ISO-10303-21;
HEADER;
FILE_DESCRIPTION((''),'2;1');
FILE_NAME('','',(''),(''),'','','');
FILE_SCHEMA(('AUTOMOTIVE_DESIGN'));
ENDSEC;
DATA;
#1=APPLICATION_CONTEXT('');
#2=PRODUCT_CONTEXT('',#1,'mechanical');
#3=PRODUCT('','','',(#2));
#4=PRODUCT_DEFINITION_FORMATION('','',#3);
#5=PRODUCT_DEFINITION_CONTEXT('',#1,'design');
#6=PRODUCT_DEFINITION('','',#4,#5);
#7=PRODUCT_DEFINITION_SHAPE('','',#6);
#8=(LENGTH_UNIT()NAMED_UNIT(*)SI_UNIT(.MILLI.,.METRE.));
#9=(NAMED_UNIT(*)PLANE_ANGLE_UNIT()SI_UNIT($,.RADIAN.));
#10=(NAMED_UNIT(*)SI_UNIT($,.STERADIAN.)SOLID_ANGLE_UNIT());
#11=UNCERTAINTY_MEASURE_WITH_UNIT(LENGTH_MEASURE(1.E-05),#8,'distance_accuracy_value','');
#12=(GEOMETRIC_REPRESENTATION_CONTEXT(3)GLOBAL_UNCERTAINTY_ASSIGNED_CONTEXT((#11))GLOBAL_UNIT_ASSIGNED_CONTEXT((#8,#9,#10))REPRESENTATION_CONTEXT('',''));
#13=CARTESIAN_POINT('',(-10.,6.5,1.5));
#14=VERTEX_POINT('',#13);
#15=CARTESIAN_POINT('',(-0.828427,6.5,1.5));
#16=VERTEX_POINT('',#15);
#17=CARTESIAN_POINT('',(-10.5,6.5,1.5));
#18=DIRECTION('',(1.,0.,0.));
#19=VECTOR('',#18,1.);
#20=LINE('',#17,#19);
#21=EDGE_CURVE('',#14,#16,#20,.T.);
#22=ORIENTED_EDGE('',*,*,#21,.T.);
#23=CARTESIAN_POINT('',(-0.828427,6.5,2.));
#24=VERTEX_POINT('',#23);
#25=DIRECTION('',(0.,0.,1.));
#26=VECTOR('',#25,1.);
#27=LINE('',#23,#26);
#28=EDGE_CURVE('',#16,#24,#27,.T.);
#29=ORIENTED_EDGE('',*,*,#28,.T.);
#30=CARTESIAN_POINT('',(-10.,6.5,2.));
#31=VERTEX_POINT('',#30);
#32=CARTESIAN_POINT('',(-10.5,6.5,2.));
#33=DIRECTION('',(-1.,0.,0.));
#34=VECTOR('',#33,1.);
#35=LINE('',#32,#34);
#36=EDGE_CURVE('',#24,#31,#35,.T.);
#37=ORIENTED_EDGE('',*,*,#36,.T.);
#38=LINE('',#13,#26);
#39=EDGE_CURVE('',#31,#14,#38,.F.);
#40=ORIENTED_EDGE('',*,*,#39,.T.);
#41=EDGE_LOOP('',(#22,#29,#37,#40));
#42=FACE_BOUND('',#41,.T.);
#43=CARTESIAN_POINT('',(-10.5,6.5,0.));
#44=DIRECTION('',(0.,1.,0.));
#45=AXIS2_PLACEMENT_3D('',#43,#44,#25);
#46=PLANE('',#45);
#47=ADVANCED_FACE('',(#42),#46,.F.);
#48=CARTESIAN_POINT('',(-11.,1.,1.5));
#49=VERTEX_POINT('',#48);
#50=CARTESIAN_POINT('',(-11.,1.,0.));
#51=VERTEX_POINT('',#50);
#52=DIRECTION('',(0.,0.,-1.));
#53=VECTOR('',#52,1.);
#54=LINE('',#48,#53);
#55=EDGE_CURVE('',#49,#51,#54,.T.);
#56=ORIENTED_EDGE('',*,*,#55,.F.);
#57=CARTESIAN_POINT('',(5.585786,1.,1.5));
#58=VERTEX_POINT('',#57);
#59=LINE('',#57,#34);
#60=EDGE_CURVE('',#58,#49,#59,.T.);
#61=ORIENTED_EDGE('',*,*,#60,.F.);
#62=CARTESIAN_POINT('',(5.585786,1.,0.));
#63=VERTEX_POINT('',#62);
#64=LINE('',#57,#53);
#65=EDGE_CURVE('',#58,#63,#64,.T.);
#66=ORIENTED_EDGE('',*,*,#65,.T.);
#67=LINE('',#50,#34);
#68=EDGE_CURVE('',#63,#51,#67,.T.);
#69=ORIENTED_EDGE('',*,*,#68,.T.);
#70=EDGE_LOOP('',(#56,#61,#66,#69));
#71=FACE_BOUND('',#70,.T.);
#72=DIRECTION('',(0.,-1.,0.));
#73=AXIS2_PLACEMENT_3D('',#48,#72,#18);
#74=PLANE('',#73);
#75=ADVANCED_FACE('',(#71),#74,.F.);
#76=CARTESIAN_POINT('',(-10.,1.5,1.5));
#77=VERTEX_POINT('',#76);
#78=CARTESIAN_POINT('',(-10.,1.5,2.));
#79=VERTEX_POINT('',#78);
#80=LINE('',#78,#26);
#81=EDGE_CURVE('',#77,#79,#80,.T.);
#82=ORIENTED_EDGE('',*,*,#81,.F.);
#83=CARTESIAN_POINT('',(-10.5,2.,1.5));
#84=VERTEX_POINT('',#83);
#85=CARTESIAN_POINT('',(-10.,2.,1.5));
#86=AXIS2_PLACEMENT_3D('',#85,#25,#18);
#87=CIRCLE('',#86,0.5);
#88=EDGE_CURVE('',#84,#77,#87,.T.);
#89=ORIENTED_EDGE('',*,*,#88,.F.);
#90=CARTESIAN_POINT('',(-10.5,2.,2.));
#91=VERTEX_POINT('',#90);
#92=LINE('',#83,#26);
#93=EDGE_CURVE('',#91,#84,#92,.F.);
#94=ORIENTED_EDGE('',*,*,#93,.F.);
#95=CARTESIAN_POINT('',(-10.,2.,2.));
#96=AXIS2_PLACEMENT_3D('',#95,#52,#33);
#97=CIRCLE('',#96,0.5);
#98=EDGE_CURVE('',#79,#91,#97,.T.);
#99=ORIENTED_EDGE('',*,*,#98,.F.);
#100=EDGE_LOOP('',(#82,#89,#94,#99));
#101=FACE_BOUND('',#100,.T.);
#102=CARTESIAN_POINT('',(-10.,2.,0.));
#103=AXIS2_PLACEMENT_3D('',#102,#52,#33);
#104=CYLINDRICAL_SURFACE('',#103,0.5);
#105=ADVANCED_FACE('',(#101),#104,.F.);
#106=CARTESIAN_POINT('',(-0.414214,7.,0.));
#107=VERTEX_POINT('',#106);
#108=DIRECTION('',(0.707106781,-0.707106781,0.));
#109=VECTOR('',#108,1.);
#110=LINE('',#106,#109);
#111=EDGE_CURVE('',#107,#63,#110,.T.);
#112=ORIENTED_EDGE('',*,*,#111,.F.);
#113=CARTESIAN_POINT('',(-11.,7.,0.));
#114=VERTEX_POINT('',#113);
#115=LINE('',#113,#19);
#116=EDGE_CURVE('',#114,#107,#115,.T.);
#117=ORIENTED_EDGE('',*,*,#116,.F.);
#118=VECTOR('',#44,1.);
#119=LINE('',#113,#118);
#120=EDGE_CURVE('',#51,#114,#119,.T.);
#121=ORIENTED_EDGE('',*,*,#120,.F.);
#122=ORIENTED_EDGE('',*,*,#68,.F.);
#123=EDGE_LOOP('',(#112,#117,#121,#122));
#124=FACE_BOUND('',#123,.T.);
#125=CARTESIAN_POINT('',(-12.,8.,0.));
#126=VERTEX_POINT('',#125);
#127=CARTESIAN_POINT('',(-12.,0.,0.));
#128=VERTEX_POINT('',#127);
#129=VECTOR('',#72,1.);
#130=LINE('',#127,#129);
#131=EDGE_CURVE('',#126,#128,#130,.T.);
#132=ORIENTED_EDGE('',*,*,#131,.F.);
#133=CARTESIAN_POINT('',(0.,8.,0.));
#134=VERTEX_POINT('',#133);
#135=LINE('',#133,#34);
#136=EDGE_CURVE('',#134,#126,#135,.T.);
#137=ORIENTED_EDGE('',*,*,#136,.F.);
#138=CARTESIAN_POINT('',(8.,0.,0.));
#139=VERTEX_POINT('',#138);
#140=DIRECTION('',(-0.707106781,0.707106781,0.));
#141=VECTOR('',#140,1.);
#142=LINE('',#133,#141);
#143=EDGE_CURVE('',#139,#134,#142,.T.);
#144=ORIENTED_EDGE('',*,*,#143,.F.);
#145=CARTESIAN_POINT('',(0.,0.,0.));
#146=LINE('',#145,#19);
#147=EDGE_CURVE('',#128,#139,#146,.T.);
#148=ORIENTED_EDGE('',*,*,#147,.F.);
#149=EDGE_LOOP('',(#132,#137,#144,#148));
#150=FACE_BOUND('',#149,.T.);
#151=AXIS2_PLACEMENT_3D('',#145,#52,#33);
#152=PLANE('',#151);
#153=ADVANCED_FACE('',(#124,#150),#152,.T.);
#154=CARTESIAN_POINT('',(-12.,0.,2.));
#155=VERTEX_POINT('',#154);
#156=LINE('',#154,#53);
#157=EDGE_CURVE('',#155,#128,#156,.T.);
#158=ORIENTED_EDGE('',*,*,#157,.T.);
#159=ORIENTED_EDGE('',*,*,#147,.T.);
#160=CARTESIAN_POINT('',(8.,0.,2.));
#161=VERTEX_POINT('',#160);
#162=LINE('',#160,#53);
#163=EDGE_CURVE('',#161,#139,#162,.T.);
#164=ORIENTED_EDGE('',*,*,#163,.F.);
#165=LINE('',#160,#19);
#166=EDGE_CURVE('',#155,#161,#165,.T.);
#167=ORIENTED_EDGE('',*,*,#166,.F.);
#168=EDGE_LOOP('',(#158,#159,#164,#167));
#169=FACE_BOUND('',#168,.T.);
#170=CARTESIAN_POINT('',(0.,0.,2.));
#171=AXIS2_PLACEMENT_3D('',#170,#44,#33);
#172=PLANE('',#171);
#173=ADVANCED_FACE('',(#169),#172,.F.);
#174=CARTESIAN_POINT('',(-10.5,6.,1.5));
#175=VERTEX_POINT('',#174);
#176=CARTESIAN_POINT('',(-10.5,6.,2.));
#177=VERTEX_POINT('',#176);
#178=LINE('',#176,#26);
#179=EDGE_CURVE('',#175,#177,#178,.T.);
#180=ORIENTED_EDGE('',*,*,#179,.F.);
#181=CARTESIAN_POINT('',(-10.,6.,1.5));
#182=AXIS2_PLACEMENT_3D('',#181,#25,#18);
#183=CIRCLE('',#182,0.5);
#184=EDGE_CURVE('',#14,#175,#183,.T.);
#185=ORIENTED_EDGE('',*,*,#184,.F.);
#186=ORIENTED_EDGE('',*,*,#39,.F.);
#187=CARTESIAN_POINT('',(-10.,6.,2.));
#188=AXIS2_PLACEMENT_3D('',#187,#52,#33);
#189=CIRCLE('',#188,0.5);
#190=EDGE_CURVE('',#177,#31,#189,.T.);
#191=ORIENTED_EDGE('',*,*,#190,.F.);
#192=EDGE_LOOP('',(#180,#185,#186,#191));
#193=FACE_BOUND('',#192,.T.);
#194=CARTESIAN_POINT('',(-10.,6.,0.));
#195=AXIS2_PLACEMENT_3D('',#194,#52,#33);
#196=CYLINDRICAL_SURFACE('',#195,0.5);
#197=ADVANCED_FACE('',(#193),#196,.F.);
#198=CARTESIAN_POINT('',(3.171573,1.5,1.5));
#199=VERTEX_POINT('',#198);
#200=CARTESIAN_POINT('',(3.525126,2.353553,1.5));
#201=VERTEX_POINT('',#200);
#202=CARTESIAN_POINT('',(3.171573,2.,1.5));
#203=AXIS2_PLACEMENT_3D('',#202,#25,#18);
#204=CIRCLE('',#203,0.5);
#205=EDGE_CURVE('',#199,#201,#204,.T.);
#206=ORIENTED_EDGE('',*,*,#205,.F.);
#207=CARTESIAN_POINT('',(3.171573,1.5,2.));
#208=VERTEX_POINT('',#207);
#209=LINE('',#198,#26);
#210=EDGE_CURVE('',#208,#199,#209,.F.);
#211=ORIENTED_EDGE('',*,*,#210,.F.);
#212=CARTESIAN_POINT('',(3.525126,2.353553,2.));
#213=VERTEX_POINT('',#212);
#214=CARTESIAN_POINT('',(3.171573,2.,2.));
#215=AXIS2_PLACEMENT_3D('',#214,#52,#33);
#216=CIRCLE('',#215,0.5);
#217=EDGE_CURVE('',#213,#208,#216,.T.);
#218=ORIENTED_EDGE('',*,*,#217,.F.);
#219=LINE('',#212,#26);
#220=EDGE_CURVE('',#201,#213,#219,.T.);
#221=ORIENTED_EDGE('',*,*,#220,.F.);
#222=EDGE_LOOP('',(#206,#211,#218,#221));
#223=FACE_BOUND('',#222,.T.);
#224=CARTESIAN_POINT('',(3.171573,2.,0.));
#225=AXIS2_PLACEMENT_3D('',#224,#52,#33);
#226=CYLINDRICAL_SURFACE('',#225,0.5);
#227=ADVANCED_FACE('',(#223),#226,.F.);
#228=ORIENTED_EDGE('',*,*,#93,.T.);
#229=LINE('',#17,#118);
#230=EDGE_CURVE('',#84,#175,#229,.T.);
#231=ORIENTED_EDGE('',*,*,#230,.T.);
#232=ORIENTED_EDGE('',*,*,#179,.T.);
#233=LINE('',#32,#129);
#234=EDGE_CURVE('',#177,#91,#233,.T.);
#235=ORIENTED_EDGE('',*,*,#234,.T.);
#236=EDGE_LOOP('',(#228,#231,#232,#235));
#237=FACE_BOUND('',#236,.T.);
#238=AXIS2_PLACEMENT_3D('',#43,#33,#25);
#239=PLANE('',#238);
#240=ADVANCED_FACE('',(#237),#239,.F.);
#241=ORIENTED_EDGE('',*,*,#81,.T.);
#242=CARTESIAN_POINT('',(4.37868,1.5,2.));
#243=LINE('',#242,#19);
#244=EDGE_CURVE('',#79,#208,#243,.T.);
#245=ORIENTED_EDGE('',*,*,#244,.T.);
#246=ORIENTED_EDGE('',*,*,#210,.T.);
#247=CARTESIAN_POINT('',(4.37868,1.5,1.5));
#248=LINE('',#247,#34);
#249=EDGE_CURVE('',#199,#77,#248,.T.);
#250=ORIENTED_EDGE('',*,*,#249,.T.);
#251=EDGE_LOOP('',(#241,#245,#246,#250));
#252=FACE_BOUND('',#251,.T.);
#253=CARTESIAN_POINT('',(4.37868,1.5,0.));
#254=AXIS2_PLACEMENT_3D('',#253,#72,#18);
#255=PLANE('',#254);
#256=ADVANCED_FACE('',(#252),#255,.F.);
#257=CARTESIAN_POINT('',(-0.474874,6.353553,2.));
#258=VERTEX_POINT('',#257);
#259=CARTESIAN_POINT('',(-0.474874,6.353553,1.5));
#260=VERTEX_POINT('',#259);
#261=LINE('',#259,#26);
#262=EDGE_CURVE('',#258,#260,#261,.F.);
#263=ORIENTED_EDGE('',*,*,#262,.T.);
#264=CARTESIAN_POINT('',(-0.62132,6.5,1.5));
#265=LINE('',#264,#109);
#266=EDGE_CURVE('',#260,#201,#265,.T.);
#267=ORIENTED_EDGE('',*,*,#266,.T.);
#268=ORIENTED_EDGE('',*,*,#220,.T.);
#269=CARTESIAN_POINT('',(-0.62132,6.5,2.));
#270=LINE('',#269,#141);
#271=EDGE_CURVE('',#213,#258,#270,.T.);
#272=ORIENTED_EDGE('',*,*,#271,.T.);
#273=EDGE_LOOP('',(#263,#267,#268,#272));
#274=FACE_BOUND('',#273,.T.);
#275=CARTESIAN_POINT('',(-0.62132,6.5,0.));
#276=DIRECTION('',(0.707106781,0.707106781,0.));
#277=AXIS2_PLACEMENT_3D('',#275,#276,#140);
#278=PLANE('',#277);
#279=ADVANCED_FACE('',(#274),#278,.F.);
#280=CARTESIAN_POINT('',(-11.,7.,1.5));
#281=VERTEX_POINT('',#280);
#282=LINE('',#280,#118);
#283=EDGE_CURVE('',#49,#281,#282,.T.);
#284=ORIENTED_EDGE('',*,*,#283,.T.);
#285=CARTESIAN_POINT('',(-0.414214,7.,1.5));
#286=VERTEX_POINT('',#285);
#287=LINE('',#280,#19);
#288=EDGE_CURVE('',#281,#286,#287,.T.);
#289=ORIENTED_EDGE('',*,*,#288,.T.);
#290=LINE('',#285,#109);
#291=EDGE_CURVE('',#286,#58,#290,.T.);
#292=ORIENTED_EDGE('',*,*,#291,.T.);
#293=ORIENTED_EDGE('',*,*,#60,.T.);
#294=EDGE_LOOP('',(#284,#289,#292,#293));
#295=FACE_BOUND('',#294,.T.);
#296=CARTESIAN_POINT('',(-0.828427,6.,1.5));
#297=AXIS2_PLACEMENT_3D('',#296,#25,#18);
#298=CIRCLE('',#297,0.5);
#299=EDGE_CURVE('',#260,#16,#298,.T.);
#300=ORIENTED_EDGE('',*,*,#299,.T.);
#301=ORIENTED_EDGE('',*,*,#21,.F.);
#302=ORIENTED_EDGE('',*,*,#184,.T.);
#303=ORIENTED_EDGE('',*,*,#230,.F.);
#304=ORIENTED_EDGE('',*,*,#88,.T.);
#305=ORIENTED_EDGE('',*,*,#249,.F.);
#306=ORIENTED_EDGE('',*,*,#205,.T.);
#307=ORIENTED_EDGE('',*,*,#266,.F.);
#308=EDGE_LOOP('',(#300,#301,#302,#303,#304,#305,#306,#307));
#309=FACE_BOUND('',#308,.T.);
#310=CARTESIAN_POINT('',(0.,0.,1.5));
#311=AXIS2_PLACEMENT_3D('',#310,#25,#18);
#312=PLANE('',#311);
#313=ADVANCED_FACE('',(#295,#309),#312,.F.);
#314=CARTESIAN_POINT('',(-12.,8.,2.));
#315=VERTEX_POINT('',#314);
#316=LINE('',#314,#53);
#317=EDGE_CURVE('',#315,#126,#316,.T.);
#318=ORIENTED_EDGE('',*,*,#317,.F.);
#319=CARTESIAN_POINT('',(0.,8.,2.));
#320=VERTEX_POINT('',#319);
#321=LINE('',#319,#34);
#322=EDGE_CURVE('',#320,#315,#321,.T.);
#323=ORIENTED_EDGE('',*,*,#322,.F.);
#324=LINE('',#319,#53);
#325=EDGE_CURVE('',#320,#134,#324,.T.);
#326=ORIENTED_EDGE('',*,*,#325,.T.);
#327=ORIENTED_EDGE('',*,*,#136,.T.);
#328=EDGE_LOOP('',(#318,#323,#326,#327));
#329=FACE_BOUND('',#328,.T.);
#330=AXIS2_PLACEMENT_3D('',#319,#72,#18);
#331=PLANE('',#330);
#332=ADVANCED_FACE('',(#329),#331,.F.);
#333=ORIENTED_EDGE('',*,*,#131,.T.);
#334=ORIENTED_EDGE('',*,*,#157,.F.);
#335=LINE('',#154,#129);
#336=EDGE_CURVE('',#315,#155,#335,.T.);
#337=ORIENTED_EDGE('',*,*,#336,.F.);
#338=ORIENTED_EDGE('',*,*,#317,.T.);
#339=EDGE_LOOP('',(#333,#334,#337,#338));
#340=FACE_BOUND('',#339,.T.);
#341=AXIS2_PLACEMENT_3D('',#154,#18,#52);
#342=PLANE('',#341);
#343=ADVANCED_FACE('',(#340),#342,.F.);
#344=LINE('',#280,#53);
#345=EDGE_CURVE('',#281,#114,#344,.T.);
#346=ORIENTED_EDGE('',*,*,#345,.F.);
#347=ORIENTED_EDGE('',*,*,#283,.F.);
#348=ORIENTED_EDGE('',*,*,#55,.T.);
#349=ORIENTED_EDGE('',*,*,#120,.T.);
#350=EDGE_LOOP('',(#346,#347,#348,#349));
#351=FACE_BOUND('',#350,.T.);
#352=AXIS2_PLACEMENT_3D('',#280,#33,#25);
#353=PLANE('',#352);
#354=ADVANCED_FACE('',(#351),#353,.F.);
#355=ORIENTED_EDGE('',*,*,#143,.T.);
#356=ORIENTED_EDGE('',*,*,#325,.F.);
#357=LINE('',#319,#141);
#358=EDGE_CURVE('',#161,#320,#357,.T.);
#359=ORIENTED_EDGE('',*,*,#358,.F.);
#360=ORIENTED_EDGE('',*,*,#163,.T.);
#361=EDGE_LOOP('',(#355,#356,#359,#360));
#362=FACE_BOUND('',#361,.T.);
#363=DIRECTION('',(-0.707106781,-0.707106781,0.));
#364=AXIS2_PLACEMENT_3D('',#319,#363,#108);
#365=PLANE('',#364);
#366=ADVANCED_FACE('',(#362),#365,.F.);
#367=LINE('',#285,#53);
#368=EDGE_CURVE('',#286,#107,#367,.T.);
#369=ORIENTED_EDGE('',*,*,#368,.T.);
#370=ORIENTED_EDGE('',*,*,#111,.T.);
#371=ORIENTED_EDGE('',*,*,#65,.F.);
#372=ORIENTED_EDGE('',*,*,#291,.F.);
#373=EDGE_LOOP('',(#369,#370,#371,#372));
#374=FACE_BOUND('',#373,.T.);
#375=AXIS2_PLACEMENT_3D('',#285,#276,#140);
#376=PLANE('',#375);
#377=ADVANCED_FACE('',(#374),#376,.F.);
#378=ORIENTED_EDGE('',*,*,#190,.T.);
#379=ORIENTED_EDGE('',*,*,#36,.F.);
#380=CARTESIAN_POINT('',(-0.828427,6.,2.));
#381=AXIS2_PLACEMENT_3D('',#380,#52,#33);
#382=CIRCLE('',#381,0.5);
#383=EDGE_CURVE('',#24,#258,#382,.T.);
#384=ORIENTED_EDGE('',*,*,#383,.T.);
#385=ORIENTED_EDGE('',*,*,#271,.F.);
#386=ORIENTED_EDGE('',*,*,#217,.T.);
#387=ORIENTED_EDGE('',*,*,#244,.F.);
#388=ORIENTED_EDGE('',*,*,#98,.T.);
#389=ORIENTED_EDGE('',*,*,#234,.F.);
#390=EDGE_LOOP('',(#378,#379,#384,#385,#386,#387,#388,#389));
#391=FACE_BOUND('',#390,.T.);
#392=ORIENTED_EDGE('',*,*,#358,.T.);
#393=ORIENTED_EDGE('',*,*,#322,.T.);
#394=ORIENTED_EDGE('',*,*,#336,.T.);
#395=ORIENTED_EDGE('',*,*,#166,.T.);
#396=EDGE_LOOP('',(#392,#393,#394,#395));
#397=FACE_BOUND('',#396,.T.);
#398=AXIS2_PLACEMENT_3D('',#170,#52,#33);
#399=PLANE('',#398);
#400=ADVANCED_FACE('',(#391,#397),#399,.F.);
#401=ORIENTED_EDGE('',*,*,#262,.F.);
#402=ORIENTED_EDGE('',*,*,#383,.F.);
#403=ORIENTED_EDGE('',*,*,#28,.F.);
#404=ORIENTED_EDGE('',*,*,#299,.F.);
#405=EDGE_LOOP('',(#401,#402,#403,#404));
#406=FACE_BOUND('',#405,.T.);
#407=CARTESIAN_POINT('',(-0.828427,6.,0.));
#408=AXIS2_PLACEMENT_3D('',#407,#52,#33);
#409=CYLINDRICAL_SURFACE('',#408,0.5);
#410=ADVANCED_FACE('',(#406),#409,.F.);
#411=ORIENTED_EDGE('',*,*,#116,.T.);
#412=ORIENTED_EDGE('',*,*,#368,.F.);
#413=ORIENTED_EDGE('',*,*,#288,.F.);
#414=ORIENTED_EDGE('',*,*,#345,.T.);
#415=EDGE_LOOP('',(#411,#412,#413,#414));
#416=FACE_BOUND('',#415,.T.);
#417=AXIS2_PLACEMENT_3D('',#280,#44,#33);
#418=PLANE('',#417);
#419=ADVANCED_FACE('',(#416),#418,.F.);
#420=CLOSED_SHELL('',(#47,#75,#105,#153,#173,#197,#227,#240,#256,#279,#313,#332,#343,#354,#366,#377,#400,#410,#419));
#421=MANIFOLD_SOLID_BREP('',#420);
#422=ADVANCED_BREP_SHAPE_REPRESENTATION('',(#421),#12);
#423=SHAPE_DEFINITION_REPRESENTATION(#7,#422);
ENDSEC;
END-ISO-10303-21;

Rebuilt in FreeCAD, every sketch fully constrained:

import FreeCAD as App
import Part
import Sketcher

V = App.Vector
Q = App.Units.Quantity


def edges_at(feature, points):
    """Names of the edges that pass closest to the given points."""
    edges = feature.Shape.Edges
    near = lambda p: min(range(len(edges)), key=lambda i: edges[i].distToShape(Part.Vertex(*p))[0])
    return sorted({f"Edge{near(p) + 1}" for p in points})


def add_polygon(sketch, points):
    """Adds a closed chain of lines whose ends are joined by coincident constraints."""
    first, n = sketch.GeometryCount, len(points)
    for a, b in zip(points, points[1:] + points[:1]):
        sketch.addGeometry(Part.LineSegment(App.Vector(*a, 0), App.Vector(*b, 0)), False)
    for i in range(n):
        sketch.addConstraint(Sketcher.Constraint("Coincident", first + i, 2, first + (i + 1) % n, 1))

doc = App.newDocument("Part")
body = doc.addObject("PartDesign::Body", "Body")

# Sketch on XY plane
sketch1 = doc.addObject("Sketcher::SketchObject", "Sketch")
body.addObject(sketch1)
sketch1.AttachmentSupport = (doc.XY_Plane, [""])
sketch1.MapMode = "FlatFace"
add_polygon(sketch1, [(8, 0), (0, 8), (-12, 8), (-12, 0)])  # lines 0-3
sketch1.addConstraint(Sketcher.Constraint("Horizontal", 1))
sketch1.addConstraint(Sketcher.Constraint("Vertical", 2))
sketch1.addConstraint(Sketcher.Constraint("Horizontal", 3))
sketch1.addConstraint(Sketcher.Constraint("PointOnObject", 0, 2, -2))
sketch1.addConstraint(Sketcher.Constraint("PointOnObject", 2, 2, -1))
sketch1.addConstraint(Sketcher.Constraint("DistanceX", 1, 2, 1, 1, Q("12 mm")))
sketch1.addConstraint(Sketcher.Constraint("DistanceX", 3, 1, 3, 2, Q("20 mm")))
sketch1.addConstraint(Sketcher.Constraint("DistanceY", 2, 2, 2, 1, Q("8 mm")))
pad1 = doc.addObject("PartDesign::Pad", "Pad")
body.addObject(pad1)
pad1.Profile = sketch1
pad1.Length = 2

# Sketch on XY plane
sketch2 = doc.addObject("Sketcher::SketchObject", "Sketch001")
body.addObject(sketch2)
sketch2.AttachmentSupport = (doc.XY_Plane, [""])
sketch2.MapMode = "FlatFace"
sketch2.AttachmentOffset = App.Placement(V(0, 0, 2), App.Rotation())
add_polygon(sketch2, [(4, 2), (-1, 6), (-10, 6), (-10, 2)])  # lines 0-3
sketch2.addConstraint(Sketcher.Constraint("Horizontal", 1))
sketch2.addConstraint(Sketcher.Constraint("Vertical", 2))
sketch2.addConstraint(Sketcher.Constraint("Horizontal", 3))
sketch2.addConstraint(Sketcher.Constraint("DistanceY", 2, 2, 2, 1, Q("5 mm")))
sketch2.addConstraint(Sketcher.Constraint("Angle", 0, Q("135 deg")))
sketch2.addConstraint(Sketcher.Constraint("DistanceY", -1, 1, 0, 2, Q("6.5 mm")))
sketch2.addConstraint(Sketcher.Constraint("DistanceX", 1, 2, -1, 1, Q("10.5 mm")))
sketch2.addConstraint(Sketcher.Constraint("DistanceX", 1, 2, 1, 1, Q("9.87868 mm")))
pocket1 = doc.addObject("PartDesign::Pocket", "Pocket")
body.addObject(pocket1)
pocket1.Profile = sketch2
pocket1.Type = "ThroughAll"

# Sketch on XY plane
sketch3 = doc.addObject("Sketcher::SketchObject", "Sketch002")
body.addObject(sketch3)
sketch3.AttachmentSupport = (doc.XY_Plane, [""])
sketch3.MapMode = "FlatFace"
add_polygon(sketch3, [(0, 7), (6, 1), (-11, 1), (-11, 7)])  # lines 0-3
sketch3.addConstraint(Sketcher.Constraint("Horizontal", 1))
sketch3.addConstraint(Sketcher.Constraint("Vertical", 2))
sketch3.addConstraint(Sketcher.Constraint("Horizontal", 3))
sketch3.addConstraint(Sketcher.Constraint("DistanceY", 2, 1, 2, 2, Q("6 mm")))
sketch3.addConstraint(Sketcher.Constraint("Angle", 0, Q("-45 deg")))
sketch3.addConstraint(Sketcher.Constraint("DistanceY", -1, 1, 0, 2, Q("1 mm")))
sketch3.addConstraint(Sketcher.Constraint("DistanceX", 1, 2, -1, 1, Q("11 mm")))
sketch3.addConstraint(Sketcher.Constraint("DistanceX", 1, 2, 1, 1, Q("16.585786 mm")))
pocket2 = doc.addObject("PartDesign::Pocket", "Pocket001")
body.addObject(pocket2)
pocket2.Profile = sketch3
pocket2.Length = 1.5
pocket2.Reversed = True
doc.recompute()

fillet = doc.addObject("PartDesign::Fillet", "Fillet")
body.addObject(fillet)
fillet.Base = (pocket2, edges_at(pocket2, [
    (4.379, 1.5, 1.75),
    (-10.5, 1.5, 1.75),
    (-0.621, 6.5, 1.75),
    (-10.5, 6.5, 1.75),
]))
fillet.Radius = 0.5

doc.recompute()
